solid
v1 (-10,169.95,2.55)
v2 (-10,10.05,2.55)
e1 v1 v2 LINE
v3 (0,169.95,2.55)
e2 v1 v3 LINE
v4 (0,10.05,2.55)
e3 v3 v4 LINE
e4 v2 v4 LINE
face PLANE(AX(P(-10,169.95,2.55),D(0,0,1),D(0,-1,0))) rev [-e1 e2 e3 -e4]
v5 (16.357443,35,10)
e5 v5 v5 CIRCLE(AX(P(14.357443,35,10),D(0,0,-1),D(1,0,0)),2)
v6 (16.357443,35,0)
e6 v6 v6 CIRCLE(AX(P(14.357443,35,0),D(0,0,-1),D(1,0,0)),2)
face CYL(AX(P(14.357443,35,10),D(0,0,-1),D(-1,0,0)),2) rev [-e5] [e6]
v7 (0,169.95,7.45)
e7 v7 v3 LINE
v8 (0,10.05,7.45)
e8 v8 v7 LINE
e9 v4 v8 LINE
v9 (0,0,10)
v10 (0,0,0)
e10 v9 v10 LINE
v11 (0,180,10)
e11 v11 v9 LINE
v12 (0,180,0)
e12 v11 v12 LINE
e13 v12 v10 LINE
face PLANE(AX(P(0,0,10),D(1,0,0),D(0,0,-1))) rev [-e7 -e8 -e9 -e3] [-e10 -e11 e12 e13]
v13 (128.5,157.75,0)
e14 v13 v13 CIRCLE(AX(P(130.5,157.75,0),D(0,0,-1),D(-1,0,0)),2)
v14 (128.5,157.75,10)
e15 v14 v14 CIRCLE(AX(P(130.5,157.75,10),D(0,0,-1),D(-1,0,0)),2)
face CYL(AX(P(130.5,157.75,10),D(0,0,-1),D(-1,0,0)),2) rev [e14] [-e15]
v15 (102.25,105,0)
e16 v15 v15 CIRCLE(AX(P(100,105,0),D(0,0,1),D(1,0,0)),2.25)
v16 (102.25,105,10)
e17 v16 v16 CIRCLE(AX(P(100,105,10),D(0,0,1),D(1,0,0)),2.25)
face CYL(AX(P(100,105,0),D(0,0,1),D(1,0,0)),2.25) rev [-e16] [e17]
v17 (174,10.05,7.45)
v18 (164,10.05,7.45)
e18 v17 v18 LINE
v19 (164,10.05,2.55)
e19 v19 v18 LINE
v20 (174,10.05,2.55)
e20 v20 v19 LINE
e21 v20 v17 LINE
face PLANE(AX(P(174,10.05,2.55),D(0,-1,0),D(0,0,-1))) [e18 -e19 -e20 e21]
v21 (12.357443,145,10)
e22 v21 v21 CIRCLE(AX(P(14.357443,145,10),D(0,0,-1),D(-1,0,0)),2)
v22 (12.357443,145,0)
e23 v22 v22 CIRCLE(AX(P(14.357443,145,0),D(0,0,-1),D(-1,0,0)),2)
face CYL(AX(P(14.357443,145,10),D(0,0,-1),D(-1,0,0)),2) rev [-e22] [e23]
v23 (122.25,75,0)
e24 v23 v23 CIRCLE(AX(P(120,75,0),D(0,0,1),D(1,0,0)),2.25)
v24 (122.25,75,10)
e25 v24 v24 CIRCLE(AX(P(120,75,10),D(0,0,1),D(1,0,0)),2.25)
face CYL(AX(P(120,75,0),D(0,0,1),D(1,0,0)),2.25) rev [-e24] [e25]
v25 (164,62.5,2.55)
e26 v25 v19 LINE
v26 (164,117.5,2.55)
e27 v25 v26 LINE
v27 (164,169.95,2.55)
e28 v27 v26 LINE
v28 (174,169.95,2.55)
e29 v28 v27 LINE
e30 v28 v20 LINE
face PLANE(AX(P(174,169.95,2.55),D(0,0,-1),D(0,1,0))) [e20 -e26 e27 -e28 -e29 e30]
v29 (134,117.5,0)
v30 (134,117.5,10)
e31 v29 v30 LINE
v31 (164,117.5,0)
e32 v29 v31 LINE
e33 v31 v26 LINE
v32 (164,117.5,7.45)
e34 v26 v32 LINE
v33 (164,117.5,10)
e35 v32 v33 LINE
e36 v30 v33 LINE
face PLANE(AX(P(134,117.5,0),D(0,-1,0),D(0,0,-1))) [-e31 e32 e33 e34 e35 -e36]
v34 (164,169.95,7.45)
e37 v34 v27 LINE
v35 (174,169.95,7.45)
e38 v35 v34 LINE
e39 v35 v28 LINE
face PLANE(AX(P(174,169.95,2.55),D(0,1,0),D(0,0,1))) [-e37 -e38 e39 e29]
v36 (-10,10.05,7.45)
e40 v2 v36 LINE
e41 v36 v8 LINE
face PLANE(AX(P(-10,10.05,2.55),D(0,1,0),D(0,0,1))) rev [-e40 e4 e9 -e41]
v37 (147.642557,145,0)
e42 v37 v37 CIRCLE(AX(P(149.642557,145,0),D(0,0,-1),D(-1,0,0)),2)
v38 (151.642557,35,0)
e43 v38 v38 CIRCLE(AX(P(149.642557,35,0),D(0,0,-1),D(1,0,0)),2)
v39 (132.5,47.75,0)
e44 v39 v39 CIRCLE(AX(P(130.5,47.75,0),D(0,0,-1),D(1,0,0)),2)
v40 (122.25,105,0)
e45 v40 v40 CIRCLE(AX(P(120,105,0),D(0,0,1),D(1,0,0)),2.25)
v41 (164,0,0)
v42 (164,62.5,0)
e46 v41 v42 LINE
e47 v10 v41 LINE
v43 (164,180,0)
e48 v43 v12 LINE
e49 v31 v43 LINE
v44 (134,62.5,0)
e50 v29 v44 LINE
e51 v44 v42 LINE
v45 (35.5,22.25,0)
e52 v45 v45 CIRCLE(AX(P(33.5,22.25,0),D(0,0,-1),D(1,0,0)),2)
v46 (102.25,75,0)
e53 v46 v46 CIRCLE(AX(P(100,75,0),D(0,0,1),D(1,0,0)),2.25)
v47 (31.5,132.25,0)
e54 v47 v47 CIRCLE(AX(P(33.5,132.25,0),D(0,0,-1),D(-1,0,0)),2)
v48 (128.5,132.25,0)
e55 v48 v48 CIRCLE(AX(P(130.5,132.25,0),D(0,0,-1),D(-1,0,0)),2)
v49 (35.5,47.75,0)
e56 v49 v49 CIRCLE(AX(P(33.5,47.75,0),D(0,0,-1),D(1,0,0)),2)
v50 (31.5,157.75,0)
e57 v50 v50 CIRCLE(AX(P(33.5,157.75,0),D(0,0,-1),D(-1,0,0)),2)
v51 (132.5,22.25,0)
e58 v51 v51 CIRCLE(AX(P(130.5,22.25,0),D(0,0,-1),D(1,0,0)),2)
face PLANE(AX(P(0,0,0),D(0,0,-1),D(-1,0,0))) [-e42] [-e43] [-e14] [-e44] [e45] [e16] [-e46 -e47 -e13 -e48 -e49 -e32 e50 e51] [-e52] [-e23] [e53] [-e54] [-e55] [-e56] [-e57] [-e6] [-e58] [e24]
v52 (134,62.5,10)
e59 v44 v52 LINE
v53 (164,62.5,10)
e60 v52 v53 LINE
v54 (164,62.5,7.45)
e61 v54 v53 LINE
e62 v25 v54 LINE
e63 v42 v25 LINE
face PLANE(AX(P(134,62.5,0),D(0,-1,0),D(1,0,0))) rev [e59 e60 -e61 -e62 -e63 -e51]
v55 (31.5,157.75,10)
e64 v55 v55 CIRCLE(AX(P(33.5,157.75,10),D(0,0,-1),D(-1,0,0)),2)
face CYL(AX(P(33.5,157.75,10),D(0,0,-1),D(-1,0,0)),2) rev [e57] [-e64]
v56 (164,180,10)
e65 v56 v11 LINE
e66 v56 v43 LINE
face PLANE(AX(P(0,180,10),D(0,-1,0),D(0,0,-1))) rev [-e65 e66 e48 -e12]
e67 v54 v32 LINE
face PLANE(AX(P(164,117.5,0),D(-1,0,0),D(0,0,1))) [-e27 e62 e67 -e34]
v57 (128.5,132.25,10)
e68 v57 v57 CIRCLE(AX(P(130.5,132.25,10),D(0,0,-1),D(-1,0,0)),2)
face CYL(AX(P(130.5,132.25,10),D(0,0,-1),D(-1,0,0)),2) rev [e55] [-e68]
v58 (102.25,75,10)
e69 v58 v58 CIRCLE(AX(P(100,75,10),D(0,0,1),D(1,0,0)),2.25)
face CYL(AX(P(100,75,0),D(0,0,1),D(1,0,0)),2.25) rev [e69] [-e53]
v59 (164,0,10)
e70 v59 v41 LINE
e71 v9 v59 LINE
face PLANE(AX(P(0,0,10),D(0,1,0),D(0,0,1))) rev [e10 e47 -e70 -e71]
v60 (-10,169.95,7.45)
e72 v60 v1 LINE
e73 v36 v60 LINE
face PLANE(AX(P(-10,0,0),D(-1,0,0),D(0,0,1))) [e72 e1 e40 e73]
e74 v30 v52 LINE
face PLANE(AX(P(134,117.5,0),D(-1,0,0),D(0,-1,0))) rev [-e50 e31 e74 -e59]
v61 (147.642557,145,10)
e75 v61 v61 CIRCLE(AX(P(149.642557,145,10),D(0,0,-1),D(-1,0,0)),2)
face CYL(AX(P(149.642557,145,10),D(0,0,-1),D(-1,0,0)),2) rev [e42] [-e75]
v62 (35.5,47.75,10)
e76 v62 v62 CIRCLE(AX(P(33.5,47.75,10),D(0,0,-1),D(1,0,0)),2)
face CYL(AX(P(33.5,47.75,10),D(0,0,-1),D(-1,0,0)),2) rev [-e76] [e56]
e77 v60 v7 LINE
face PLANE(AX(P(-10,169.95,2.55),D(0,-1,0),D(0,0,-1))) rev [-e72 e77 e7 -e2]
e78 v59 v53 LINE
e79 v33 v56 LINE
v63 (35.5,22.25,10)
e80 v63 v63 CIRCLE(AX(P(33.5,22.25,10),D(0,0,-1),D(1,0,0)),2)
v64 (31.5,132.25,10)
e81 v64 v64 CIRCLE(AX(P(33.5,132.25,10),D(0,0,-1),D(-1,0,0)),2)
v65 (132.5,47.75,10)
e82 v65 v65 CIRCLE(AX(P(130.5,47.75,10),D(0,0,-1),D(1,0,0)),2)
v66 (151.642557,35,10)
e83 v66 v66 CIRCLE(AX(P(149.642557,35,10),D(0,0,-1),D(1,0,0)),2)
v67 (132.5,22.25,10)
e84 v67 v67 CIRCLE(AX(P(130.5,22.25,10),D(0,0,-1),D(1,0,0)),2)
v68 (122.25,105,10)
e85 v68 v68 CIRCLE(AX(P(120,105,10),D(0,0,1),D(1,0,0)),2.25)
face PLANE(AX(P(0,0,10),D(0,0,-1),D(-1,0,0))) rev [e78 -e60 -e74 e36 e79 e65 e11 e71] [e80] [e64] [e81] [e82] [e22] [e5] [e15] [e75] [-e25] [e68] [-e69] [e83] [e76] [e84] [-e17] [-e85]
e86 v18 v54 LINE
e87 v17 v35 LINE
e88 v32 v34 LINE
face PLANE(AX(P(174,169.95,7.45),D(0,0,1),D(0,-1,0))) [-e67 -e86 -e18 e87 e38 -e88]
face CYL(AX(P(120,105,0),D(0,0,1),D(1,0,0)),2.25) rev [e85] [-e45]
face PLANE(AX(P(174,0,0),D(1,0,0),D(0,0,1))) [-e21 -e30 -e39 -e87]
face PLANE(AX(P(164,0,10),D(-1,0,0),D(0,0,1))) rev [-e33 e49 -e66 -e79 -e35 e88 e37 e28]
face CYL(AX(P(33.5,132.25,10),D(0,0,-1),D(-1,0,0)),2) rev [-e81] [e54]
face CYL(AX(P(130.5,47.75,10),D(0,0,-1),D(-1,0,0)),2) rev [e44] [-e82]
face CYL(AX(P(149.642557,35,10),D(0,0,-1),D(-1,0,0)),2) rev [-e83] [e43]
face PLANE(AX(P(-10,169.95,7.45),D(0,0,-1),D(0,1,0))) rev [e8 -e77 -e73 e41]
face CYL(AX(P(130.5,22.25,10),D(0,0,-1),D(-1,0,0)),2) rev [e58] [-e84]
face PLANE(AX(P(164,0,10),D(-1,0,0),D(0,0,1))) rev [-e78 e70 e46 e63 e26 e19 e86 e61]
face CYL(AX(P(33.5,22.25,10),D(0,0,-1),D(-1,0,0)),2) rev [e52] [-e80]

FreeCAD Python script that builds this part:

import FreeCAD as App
import Part
import Sketcher

V = App.Vector
Q = App.Units.Quantity

doc = App.newDocument("Part")
params = doc.addObject("Spreadsheet::Sheet", "Params")
for row, (alias, value) in enumerate([
    ("sketch1_width", "164 mm"),
    ("sketch1_height", "180 mm"),
    ("pad1_length", "10 mm"),
    ("sketch2_width", "159.9 mm"),
    ("sketch2_height", "4.9 mm"),
    ("pad2_length", "10 mm"),
    ("sketch3_diameter", "4 mm"),
    ("pocket1_length", "10 mm"),
    ("sketch4_diameter", "4.5 mm"),
    ("sketch4_width", "30 mm"),
    ("sketch4_height", "55 mm"),
], start=1):
    params.set(f"A{row}", alias)
    params.set(f"B{row}", "=" + value)
    params.setAlias(f"B{row}", alias)

body = doc.addObject("PartDesign::Body", "Body")

sketch1 = doc.addObject("Sketcher::SketchObject", "Sketch")
body.addObject(sketch1)
sketch1.AttachmentSupport = (doc.XY_Plane, [""])
sketch1.MapMode = "FlatFace"
sketch1.addGeometry(Part.LineSegment(V(0, 180, 0), V(0, 0, 0)), False)
sketch1.addGeometry(Part.LineSegment(V(0, 0, 0), V(164, 0, 0)), False)
sketch1.addGeometry(Part.LineSegment(V(164, 0, 0), V(164, 180, 0)), False)
sketch1.addGeometry(Part.LineSegment(V(164, 180, 0), V(0, 180, 0)), False)
sketch1.addConstraint(Sketcher.Constraint("Coincident", 0, 2, 1, 1))
sketch1.addConstraint(Sketcher.Constraint("Coincident", 1, 2, 2, 1))
sketch1.addConstraint(Sketcher.Constraint("Coincident", 2, 2, 3, 1))
sketch1.addConstraint(Sketcher.Constraint("Coincident", 3, 2, 0, 1))
sketch1.addConstraint(Sketcher.Constraint("Vertical", 0))
sketch1.addConstraint(Sketcher.Constraint("Horizontal", 1))
sketch1.addConstraint(Sketcher.Constraint("Vertical", 2))
sketch1.addConstraint(Sketcher.Constraint("Horizontal", 3))
sketch1.addConstraint(Sketcher.Constraint("Coincident", 0, 2, -1, 1))
sketch1.addConstraint(Sketcher.Constraint("DistanceX", 1, 1, 1, 2, Q("164 mm")))
sketch1.addConstraint(Sketcher.Constraint("DistanceY", 0, 2, 0, 1, Q("180 mm")))
sketch1.setExpression("Constraints[9]", "Params.sketch1_width")
sketch1.setExpression("Constraints[10]", "Params.sketch1_height")
pad1 = doc.addObject("PartDesign::Pad", "Pad")
body.addObject(pad1)
pad1.Profile = sketch1
pad1.setExpression("Length", "Params.pad1_length")

sketch2 = doc.addObject("Sketcher::SketchObject", "Sketch001")
body.addObject(sketch2)
sketch2.AttachmentSupport = (doc.YZ_Plane, [""])
sketch2.MapMode = "FlatFace"
sketch2.addGeometry(Part.LineSegment(V(169.9, 2.5, 0), V(10.1, 2.5, 0)), False)
sketch2.addGeometry(Part.LineSegment(V(10.1, 2.5, 0), V(10.1, 7.5, 0)), False)
sketch2.addGeometry(Part.LineSegment(V(10.1, 7.5, 0), V(169.9, 7.5, 0)), False)
sketch2.addGeometry(Part.LineSegment(V(169.9, 7.5, 0), V(169.9, 2.5, 0)), False)
sketch2.addConstraint(Sketcher.Constraint("Coincident", 0, 2, 1, 1))
sketch2.addConstraint(Sketcher.Constraint("Coincident", 1, 2, 2, 1))
sketch2.addConstraint(Sketcher.Constraint("Coincident", 2, 2, 3, 1))
sketch2.addConstraint(Sketcher.Constraint("Coincident", 3, 2, 0, 1))
sketch2.addConstraint(Sketcher.Constraint("Horizontal", 0))
sketch2.addConstraint(Sketcher.Constraint("Vertical", 1))
sketch2.addConstraint(Sketcher.Constraint("Horizontal", 2))
sketch2.addConstraint(Sketcher.Constraint("Vertical", 3))
sketch2.addConstraint(Sketcher.Constraint("DistanceX", 0, 2, 0, 1, Q("159.9 mm")))
sketch2.addConstraint(Sketcher.Constraint("DistanceY", 1, 1, 1, 2, Q("4.9 mm")))
sketch2.addConstraint(Sketcher.Constraint("DistanceX", -1, 1, 0, 2, Q("10.05 mm")))
sketch2.addConstraint(Sketcher.Constraint("DistanceY", -1, 1, 0, 2, Q("2.55 mm")))
sketch2.setExpression("Constraints[8]", "Params.sketch2_width")
sketch2.setExpression("Constraints[9]", "Params.sketch2_height")
pad2 = doc.addObject("PartDesign::Pad", "Pad001")
body.addObject(pad2)
pad2.Profile = sketch2
pad2.setExpression("Length", "Params.pad2_length")
pad2.Reversed = True
doc.recompute()

datumplane = doc.addObject("PartDesign::Plane", "DatumPlane")
body.addObject(datumplane)
datumplane.AttachmentSupport = (doc.YZ_Plane, [""])
datumplane.MapMode = "FlatFace"
datumplane.AttachmentOffset = App.Placement(V(0, 0, 82), App.Rotation())
mirrored = doc.addObject("PartDesign::Mirrored", "Mirrored")
body.addObject(mirrored)
mirrored.Originals = [pad2]
mirrored.MirrorPlane = (datumplane, [""])
body.Tip = mirrored

sketch3 = doc.addObject("Sketcher::SketchObject", "Sketch002")
body.addObject(sketch3)
sketch3.AttachmentSupport = (doc.XY_Plane, [""])
sketch3.MapMode = "FlatFace"
sketch3.addGeometry(Part.Circle(V(149.6, 145, 0), V(0, 0, 1), 2), False)
sketch3.addGeometry(Part.Circle(V(130.5, 157.8, 0), V(0, 0, 1), 2), False)
sketch3.addGeometry(Part.Circle(V(130.5, 132.2, 0), V(0, 0, 1), 2), False)
sketch3.addGeometry(Part.Circle(V(14.4, 145, 0), V(0, 0, 1), 2), False)
sketch3.addGeometry(Part.Circle(V(33.5, 157.8, 0), V(0, 0, 1), 2), False)
sketch3.addGeometry(Part.Circle(V(33.5, 132.2, 0), V(0, 0, 1), 2), False)
sketch3.addGeometry(Part.Circle(V(130.5, 47.8, 0), V(0, 0, 1), 2), False)
sketch3.addGeometry(Part.Circle(V(130.5, 22.2, 0), V(0, 0, 1), 2), False)
sketch3.addGeometry(Part.Circle(V(149.6, 35, 0), V(0, 0, 1), 2), False)
sketch3.addGeometry(Part.Circle(V(33.5, 47.8, 0), V(0, 0, 1), 2), False)
sketch3.addGeometry(Part.Circle(V(33.5, 22.2, 0), V(0, 0, 1), 2), False)
sketch3.addGeometry(Part.Circle(V(14.4, 35, 0), V(0, 0, 1), 2), False)
sketch3.addConstraint(Sketcher.Constraint("Equal", 0, 1))
sketch3.addConstraint(Sketcher.Constraint("Equal", 1, 2))
sketch3.addConstraint(Sketcher.Constraint("Equal", 2, 3))
sketch3.addConstraint(Sketcher.Constraint("Equal", 3, 4))
sketch3.addConstraint(Sketcher.Constraint("Equal", 4, 5))
sketch3.addConstraint(Sketcher.Constraint("Equal", 5, 6))
sketch3.addConstraint(Sketcher.Constraint("Equal", 6, 7))
sketch3.addConstraint(Sketcher.Constraint("Equal", 7, 8))
sketch3.addConstraint(Sketcher.Constraint("Equal", 8, 9))
sketch3.addConstraint(Sketcher.Constraint("Equal", 9, 10))
sketch3.addConstraint(Sketcher.Constraint("Equal", 10, 11))
sketch3.addConstraint(Sketcher.Constraint("Horizontal", 0, 3, 3, 3))
sketch3.addConstraint(Sketcher.Constraint("Horizontal", 1, 3, 4, 3))
sketch3.addConstraint(Sketcher.Constraint("Horizontal", 2, 3, 5, 3))
sketch3.addConstraint(Sketcher.Constraint("Horizontal", 6, 3, 9, 3))
sketch3.addConstraint(Sketcher.Constraint("Horizontal", 7, 3, 10, 3))
sketch3.addConstraint(Sketcher.Constraint("Horizontal", 8, 3, 11, 3))
sketch3.addConstraint(Sketcher.Constraint("Vertical", 1, 3, 2, 3))
sketch3.addConstraint(Sketcher.Constraint("Vertical", 4, 3, 5, 3))
sketch3.addConstraint(Sketcher.Constraint("Vertical", 2, 3, 6, 3))
sketch3.addConstraint(Sketcher.Constraint("Vertical", 6, 3, 7, 3))
sketch3.addConstraint(Sketcher.Constraint("Vertical", 0, 3, 8, 3))
sketch3.addConstraint(Sketcher.Constraint("Vertical", 5, 3, 9, 3))
sketch3.addConstraint(Sketcher.Constraint("Vertical", 9, 3, 10, 3))
sketch3.addConstraint(Sketcher.Constraint("Vertical", 3, 3, 11, 3))
sketch3.addConstraint(Sketcher.Constraint("Diameter", 0, Q("4 mm")))
sketch3.addConstraint(Sketcher.Constraint("DistanceY", -1, 1, 0, 3, Q("145 mm")))
sketch3.addConstraint(Sketcher.Constraint("DistanceY", -1, 1, 8, 3, Q("35 mm")))
sketch3.addConstraint(Sketcher.Constraint("DistanceX", 4, 3, 1, 3, Q("97 mm")))
sketch3.addConstraint(Sketcher.Constraint("DistanceY", 6, 3, 1, 3, Q("110 mm")))
sketch3.addConstraint(Sketcher.Constraint("DistanceY", 7, 3, 2, 3, Q("110 mm")))
sketch3.addConstraint(Sketcher.Constraint("DistanceX", -1, 1, 1, 3, Q("130.5 mm")))
sketch3.addConstraint(Sketcher.Constraint("DistanceY", 2, 3, 1, 3, Q("25.5 mm")))
sketch3.addConstraint(Sketcher.Constraint("DistanceY", -1, 1, 1, 3, Q("157.75 mm")))
sketch3.addConstraint(Sketcher.Constraint("DistanceX", -1, 1, 0, 3, Q("149.642557 mm")))
sketch3.addConstraint(Sketcher.Constraint("DistanceX", -1, 1, 3, 3, Q("14.357443 mm")))
sketch3.setExpression("Constraints[25]", "Params.sketch3_diameter")
pocket1 = doc.addObject("PartDesign::Pocket", "Pocket")
body.addObject(pocket1)
pocket1.Profile = sketch3
pocket1.setExpression("Length", "Params.pocket1_length")
pocket1.Reversed = True

sketch4 = doc.addObject("Sketcher::SketchObject", "Sketch003")
body.addObject(sketch4)
sketch4.AttachmentSupport = (doc.XY_Plane, [""])
sketch4.MapMode = "FlatFace"
sketch4.AttachmentOffset = App.Placement(V(0, 0, 10), App.Rotation())
sketch4.addGeometry(Part.Circle(V(120, 105, 0), V(0, 0, 1), 2.2), False)
sketch4.addGeometry(Part.Circle(V(120, 75, 0), V(0, 0, 1), 2.2), False)
sketch4.addGeometry(Part.Circle(V(100, 105, 0), V(0, 0, 1), 2.2), False)
sketch4.addGeometry(Part.Circle(V(100, 75, 0), V(0, 0, 1), 2.2), False)
sketch4.addGeometry(Part.LineSegment(V(134, 117.5, 0), V(134, 62.5, 0)), False)
sketch4.addGeometry(Part.LineSegment(V(134, 62.5, 0), V(164, 62.5, 0)), False)
sketch4.addGeometry(Part.LineSegment(V(164, 62.5, 0), V(164, 117.5, 0)), False)
sketch4.addGeometry(Part.LineSegment(V(164, 117.5, 0), V(134, 117.5, 0)), False)
sketch4.addConstraint(Sketcher.Constraint("Coincident", 4, 2, 5, 1))
sketch4.addConstraint(Sketcher.Constraint("Coincident", 5, 2, 6, 1))
sketch4.addConstraint(Sketcher.Constraint("Coincident", 6, 2, 7, 1))
sketch4.addConstraint(Sketcher.Constraint("Coincident", 7, 2, 4, 1))
sketch4.addConstraint(Sketcher.Constraint("Vertical", 4))
sketch4.addConstraint(Sketcher.Constraint("Horizontal", 5))
sketch4.addConstraint(Sketcher.Constraint("Vertical", 6))
sketch4.addConstraint(Sketcher.Constraint("Horizontal", 7))
sketch4.addConstraint(Sketcher.Constraint("Equal", 0, 1))
sketch4.addConstraint(Sketcher.Constraint("Equal", 1, 2))
sketch4.addConstraint(Sketcher.Constraint("Equal", 2, 3))
sketch4.addConstraint(Sketcher.Constraint("Horizontal", 0, 3, 2, 3))
sketch4.addConstraint(Sketcher.Constraint("Horizontal", 1, 3, 3, 3))
sketch4.addConstraint(Sketcher.Constraint("Vertical", 0, 3, 1, 3))
sketch4.addConstraint(Sketcher.Constraint("Vertical", 2, 3, 3, 3))
sketch4.addConstraint(Sketcher.Constraint("Diameter", 0, Q("4.5 mm")))
sketch4.addConstraint(Sketcher.Constraint("DistanceX", 5, 1, 5, 2, Q("30 mm")))
sketch4.addConstraint(Sketcher.Constraint("DistanceY", 4, 2, 4, 1, Q("55 mm")))
sketch4.addConstraint(Sketcher.Constraint("DistanceX", -1, 1, 0, 3, Q("120 mm")))
sketch4.addConstraint(Sketcher.Constraint("DistanceY", -1, 1, 0, 3, Q("105 mm")))
sketch4.addConstraint(Sketcher.Constraint("DistanceY", -1, 1, 1, 3, Q("75 mm")))
sketch4.addConstraint(Sketcher.Constraint("DistanceX", -1, 1, 2, 3, Q("100 mm")))
sketch4.addConstraint(Sketcher.Constraint("DistanceX", -1, 1, 4, 2, Q("134 mm")))
sketch4.addConstraint(Sketcher.Constraint("DistanceY", -1, 1, 4, 2, Q("62.5 mm")))
sketch4.setExpression("Constraints[15]", "Params.sketch4_diameter")
sketch4.setExpression("Constraints[16]", "Params.sketch4_width")
sketch4.setExpression("Constraints[17]", "Params.sketch4_height")
pocket2 = doc.addObject("PartDesign::Pocket", "Pocket001")
body.addObject(pocket2)
pocket2.Profile = sketch4
pocket2.Type = "ThroughAll"

doc.recompute()
